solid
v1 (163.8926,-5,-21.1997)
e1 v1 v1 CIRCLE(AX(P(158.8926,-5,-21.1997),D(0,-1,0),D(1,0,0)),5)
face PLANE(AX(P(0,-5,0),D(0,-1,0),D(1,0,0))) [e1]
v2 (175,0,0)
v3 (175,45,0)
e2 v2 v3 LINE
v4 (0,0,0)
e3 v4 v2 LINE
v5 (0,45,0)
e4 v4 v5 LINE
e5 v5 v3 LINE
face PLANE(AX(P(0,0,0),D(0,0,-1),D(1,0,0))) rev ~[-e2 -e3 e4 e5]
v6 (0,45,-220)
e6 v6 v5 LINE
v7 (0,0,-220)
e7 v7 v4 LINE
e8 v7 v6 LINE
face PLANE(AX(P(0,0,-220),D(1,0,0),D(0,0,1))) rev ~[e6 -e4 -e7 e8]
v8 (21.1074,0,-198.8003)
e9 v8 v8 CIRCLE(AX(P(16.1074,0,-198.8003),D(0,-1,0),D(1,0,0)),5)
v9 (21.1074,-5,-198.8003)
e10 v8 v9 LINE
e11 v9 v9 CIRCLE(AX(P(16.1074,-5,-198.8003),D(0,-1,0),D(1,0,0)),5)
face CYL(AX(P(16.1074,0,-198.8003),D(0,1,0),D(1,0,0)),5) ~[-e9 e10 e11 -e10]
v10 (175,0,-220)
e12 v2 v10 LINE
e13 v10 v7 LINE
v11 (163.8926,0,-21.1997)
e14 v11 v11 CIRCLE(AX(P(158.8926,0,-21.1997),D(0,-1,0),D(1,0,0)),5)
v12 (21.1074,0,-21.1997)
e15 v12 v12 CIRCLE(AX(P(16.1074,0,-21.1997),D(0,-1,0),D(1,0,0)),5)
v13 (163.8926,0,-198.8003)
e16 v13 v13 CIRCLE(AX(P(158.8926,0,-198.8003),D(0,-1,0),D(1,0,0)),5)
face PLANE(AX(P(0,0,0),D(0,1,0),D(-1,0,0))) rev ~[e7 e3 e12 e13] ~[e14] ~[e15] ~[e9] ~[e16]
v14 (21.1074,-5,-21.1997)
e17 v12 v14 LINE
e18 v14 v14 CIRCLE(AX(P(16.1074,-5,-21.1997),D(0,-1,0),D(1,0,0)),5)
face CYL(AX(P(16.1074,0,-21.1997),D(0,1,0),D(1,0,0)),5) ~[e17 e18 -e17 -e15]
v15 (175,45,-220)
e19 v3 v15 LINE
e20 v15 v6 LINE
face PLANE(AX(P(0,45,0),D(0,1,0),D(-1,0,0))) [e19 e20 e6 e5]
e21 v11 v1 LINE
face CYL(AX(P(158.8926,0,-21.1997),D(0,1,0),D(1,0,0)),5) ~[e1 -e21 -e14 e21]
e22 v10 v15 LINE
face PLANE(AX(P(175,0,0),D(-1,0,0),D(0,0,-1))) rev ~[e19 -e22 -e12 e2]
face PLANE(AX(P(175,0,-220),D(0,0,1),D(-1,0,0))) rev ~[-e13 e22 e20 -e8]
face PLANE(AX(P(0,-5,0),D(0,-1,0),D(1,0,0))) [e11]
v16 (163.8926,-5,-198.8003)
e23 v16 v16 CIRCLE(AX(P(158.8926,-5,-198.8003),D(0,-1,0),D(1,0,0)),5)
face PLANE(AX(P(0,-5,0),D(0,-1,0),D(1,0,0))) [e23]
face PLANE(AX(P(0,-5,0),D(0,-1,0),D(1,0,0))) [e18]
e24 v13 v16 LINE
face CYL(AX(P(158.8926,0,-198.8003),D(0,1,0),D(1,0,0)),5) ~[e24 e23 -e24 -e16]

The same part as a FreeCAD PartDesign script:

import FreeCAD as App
import Part
import Sketcher

doc = App.newDocument("Part")
params = doc.addObject("Spreadsheet::Sheet", "Params")
for row, (alias, value) in enumerate([
    ("sketch1_width", "175 mm"),
    ("sketch1_height", "220 mm"),
    ("pad1_length", "45 mm"),
    ("sketch2_diameter", "10 mm"),
    ("pad2_length", "5 mm"),
], start=1):
    params.set(f"A{row}", alias)
    params.set(f"B{row}", "=" + value)
    params.setAlias(f"B{row}", alias)

body = doc.addObject("PartDesign::Body", "Body")

# Sketch on XZ plane
sketch1 = doc.addObject("Sketcher::SketchObject", "Sketch")
body.addObject(sketch1)
sketch1.AttachmentSupport = (doc.XZ_Plane, [""])
sketch1.MapMode = "FlatFace"
sketch1.addGeometry(Part.LineSegment(App.Vector(0, -220, 0), App.Vector(0, 0, 0)), False)
sketch1.addGeometry(Part.LineSegment(App.Vector(0, 0, 0), App.Vector(175, 0, 0)), False)
sketch1.addGeometry(Part.LineSegment(App.Vector(175, 0, 0), App.Vector(175, -220, 0)), False)
sketch1.addGeometry(Part.LineSegment(App.Vector(175, -220, 0), App.Vector(0, -220, 0)), False)
sketch1.addConstraint(Sketcher.Constraint("Coincident", 0, 2, 1, 1))
sketch1.addConstraint(Sketcher.Constraint("Coincident", 1, 2, 2, 1))
sketch1.addConstraint(Sketcher.Constraint("Coincident", 2, 2, 3, 1))
sketch1.addConstraint(Sketcher.Constraint("Coincident", 3, 2, 0, 1))
sketch1.addConstraint(Sketcher.Constraint("Vertical", 0))
sketch1.addConstraint(Sketcher.Constraint("Horizontal", 1))
sketch1.addConstraint(Sketcher.Constraint("Vertical", 2))
sketch1.addConstraint(Sketcher.Constraint("Horizontal", 3))
sketch1.addConstraint(Sketcher.Constraint("Coincident", 0, 2, -1, 1))
sketch1.addConstraint(Sketcher.Constraint("DistanceX", 1, 1, 1, 2, 175.0))
sketch1.addConstraint(Sketcher.Constraint("DistanceY", 0, 1, 0, 2, 220.0))
sketch1.setExpression("Constraints[9]", "Params.sketch1_width")
sketch1.setExpression("Constraints[10]", "Params.sketch1_height")
pad1 = doc.addObject("PartDesign::Pad", "Pad")
body.addObject(pad1)
pad1.Profile = sketch1
pad1.setExpression("Length", "Params.pad1_length")
pad1.Reversed = True

# Sketch on XZ plane
sketch2 = doc.addObject("Sketcher::SketchObject", "Sketch001")
body.addObject(sketch2)
sketch2.AttachmentSupport = (doc.XZ_Plane, [""])
sketch2.MapMode = "FlatFace"
sketch2.addGeometry(Part.Circle(App.Vector(159, -21, 0), App.Vector(0, 0, 1), 5), False)
sketch2.addGeometry(Part.Circle(App.Vector(159, -199, 0), App.Vector(0, 0, 1), 5), False)
sketch2.addGeometry(Part.Circle(App.Vector(16, -199, 0), App.Vector(0, 0, 1), 5), False)
sketch2.addGeometry(Part.Circle(App.Vector(16, -21, 0), App.Vector(0, 0, 1), 5), False)
sketch2.addConstraint(Sketcher.Constraint("Equal", 0, 1))
sketch2.addConstraint(Sketcher.Constraint("Equal", 1, 2))
sketch2.addConstraint(Sketcher.Constraint("Equal", 2, 3))
sketch2.addConstraint(Sketcher.Constraint("Horizontal", 1, 3, 2, 3))
sketch2.addConstraint(Sketcher.Constraint("Horizontal", 0, 3, 3, 3))
sketch2.addConstraint(Sketcher.Constraint("Vertical", 0, 3, 1, 3))
sketch2.addConstraint(Sketcher.Constraint("Vertical", 2, 3, 3, 3))
sketch2.addConstraint(Sketcher.Constraint("Diameter", 0, 10.0))
sketch2.addConstraint(Sketcher.Constraint("DistanceX", -1, 1, 0, 3, 158.8926))
sketch2.addConstraint(Sketcher.Constraint("DistanceY", 0, 3, -1, 1, 21.1997))
sketch2.addConstraint(Sketcher.Constraint("DistanceY", 1, 3, -1, 1, 198.8003))
sketch2.addConstraint(Sketcher.Constraint("DistanceX", -1, 1, 2, 3, 16.1074))
sketch2.setExpression("Constraints[7]", "Params.sketch2_diameter")
pad2 = doc.addObject("PartDesign::Pad", "Pad001")
body.addObject(pad2)
pad2.Profile = sketch2
pad2.setExpression("Length", "Params.pad2_length")

doc.recompute()
